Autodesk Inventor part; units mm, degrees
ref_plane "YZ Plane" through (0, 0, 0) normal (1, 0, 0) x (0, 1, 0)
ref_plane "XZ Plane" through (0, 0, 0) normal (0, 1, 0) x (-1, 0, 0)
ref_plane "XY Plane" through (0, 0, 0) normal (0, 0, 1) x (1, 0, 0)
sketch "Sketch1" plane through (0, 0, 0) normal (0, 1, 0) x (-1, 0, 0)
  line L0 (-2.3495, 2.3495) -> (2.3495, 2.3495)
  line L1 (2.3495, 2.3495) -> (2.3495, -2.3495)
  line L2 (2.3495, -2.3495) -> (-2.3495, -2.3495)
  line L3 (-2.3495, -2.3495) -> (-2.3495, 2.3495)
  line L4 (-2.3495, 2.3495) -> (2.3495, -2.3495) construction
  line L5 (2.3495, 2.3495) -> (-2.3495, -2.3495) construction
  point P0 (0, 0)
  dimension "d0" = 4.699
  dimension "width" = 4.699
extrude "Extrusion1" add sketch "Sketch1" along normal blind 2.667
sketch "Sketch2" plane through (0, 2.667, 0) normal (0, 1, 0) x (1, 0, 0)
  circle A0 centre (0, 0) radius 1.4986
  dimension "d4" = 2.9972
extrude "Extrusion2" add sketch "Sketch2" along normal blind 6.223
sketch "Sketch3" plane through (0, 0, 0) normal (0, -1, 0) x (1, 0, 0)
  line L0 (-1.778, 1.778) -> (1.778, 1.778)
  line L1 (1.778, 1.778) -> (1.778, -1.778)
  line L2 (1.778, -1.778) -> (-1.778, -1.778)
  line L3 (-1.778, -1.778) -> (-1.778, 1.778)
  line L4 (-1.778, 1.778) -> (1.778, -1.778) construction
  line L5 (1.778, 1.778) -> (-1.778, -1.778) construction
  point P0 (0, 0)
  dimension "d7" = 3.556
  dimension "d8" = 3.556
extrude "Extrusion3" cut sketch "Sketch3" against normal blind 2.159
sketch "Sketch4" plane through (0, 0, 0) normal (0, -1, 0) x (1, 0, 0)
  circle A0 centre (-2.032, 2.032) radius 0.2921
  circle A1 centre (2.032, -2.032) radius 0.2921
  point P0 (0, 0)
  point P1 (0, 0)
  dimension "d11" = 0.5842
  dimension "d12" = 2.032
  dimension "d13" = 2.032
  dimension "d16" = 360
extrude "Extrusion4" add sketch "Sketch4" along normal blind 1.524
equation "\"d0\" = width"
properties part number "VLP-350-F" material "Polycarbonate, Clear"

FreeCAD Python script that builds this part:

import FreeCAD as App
import Part
import Sketcher
Q = App.Units.Quantity


def add_polygon(sketch, points):
    """Adds a closed chain of lines whose ends are joined by coincident constraints."""
    first, n = sketch.GeometryCount, len(points)
    for a, b in zip(points, points[1:] + points[:1]):
        sketch.addGeometry(Part.LineSegment(App.Vector(*a, 0), App.Vector(*b, 0)), False)
    for i in range(n):
        sketch.addConstraint(Sketcher.Constraint("Coincident", first + i, 2, first + (i + 1) % n, 1))

doc = App.newDocument("Part")
body = doc.addObject("PartDesign::Body", "Body")

# Sketch on XZ plane
sketch1 = body.newObject("Sketcher::SketchObject", "Sketch")
sketch1.AttachmentSupport = (doc.getObject("XZ_Plane"), [""])
sketch1.MapMode = "FlatFace"
add_polygon(sketch1, [(-2.3, 2.3), (2.3, 2.3), (2.3, -2.3), (-2.3, -2.3)])  # lines 0-3
sketch1.addConstraint([
    Sketcher.Constraint("Horizontal", 0),
    Sketcher.Constraint("Vertical", 1),
    Sketcher.Constraint("Horizontal", 2),
    Sketcher.Constraint("Vertical", 3),
    Sketcher.Constraint("Symmetric", 0, 2, 2, 2, -1, 1),
    Sketcher.Constraint("Equal", 2, 1),
    Sketcher.Constraint("DistanceX", 0, 1, 0, 2, Q("0.185 in")),
])
pad1 = body.newObject("PartDesign::Pad", "Pad")
pad1.Profile = sketch1
pad1.Length = Q("0.105 in")
pad1.Reversed = True

# Sketch on XZ plane
sketch2 = body.newObject("Sketcher::SketchObject", "Sketch001")
sketch2.AttachmentSupport = (doc.getObject("XZ_Plane"), [""])
sketch2.MapMode = "FlatFace"
sketch2.AttachmentOffset = App.Placement(App.Vector(0, 0, -0.105 * 25.4), App.Rotation())
sketch2.addGeometry(Part.Circle(App.Vector(0, 0, 0), App.Vector(0, 0, 1), 1.5), False)
sketch2.addConstraint([
    Sketcher.Constraint("Coincident", 0, 3, -1, 1),
    Sketcher.Constraint("Diameter", 0, Q("0.118 in")),
])
pad2 = body.newObject("PartDesign::Pad", "Pad001")
pad2.Profile = sketch2
pad2.Length = Q("0.245 in")
pad2.Reversed = True

# Sketch on XZ plane
sketch3 = body.newObject("Sketcher::SketchObject", "Sketch002")
sketch3.AttachmentSupport = (doc.getObject("XZ_Plane"), [""])
sketch3.MapMode = "FlatFace"
add_polygon(sketch3, [(1.8, 1.8), (-1.8, 1.8), (-1.8, -1.8), (1.8, -1.8)])  # lines 0-3
sketch3.addConstraint([
    Sketcher.Constraint("Horizontal", 0),
    Sketcher.Constraint("Vertical", 1),
    Sketcher.Constraint("Horizontal", 2),
    Sketcher.Constraint("Vertical", 3),
    Sketcher.Constraint("Symmetric", 0, 2, 2, 2, -1, 1),
    Sketcher.Constraint("Equal", 2, 1),
    Sketcher.Constraint("DistanceX", 0, 2, 0, 1, Q("0.14 in")),
])
pocket1 = body.newObject("PartDesign::Pocket", "Pocket")
pocket1.Profile = sketch3
pocket1.Length = Q("0.085 in")

# Sketch on XZ plane
sketch4 = body.newObject("Sketcher::SketchObject", "Sketch003")
sketch4.AttachmentSupport = (doc.getObject("XZ_Plane"), [""])
sketch4.MapMode = "FlatFace"
sketch4.addGeometry([
    Part.Circle(App.Vector(-2.03, 2.03, 0), App.Vector(0, 0, 1), 0.29),
    Part.Circle(App.Vector(2.03, -2.03, 0), App.Vector(0, 0, 1), 0.29),
], False)
sketch4.addConstraint([
    Sketcher.Constraint("Equal", 0, 1),
    Sketcher.Constraint("Symmetric", 0, 3, 1, 3, -1, 1),
    Sketcher.Constraint("Diameter", 0, Q("0.023 in")),
    Sketcher.Constraint("DistanceX", 0, 3, -1, 1, Q("0.08 in")),
    Sketcher.Constraint("DistanceY", -1, 1, 0, 3, Q("0.08 in")),
])
pad3 = body.newObject("PartDesign::Pad", "Pad002")
pad3.Profile = sketch4
pad3.Length = Q("0.06 in")

doc.recompute()
